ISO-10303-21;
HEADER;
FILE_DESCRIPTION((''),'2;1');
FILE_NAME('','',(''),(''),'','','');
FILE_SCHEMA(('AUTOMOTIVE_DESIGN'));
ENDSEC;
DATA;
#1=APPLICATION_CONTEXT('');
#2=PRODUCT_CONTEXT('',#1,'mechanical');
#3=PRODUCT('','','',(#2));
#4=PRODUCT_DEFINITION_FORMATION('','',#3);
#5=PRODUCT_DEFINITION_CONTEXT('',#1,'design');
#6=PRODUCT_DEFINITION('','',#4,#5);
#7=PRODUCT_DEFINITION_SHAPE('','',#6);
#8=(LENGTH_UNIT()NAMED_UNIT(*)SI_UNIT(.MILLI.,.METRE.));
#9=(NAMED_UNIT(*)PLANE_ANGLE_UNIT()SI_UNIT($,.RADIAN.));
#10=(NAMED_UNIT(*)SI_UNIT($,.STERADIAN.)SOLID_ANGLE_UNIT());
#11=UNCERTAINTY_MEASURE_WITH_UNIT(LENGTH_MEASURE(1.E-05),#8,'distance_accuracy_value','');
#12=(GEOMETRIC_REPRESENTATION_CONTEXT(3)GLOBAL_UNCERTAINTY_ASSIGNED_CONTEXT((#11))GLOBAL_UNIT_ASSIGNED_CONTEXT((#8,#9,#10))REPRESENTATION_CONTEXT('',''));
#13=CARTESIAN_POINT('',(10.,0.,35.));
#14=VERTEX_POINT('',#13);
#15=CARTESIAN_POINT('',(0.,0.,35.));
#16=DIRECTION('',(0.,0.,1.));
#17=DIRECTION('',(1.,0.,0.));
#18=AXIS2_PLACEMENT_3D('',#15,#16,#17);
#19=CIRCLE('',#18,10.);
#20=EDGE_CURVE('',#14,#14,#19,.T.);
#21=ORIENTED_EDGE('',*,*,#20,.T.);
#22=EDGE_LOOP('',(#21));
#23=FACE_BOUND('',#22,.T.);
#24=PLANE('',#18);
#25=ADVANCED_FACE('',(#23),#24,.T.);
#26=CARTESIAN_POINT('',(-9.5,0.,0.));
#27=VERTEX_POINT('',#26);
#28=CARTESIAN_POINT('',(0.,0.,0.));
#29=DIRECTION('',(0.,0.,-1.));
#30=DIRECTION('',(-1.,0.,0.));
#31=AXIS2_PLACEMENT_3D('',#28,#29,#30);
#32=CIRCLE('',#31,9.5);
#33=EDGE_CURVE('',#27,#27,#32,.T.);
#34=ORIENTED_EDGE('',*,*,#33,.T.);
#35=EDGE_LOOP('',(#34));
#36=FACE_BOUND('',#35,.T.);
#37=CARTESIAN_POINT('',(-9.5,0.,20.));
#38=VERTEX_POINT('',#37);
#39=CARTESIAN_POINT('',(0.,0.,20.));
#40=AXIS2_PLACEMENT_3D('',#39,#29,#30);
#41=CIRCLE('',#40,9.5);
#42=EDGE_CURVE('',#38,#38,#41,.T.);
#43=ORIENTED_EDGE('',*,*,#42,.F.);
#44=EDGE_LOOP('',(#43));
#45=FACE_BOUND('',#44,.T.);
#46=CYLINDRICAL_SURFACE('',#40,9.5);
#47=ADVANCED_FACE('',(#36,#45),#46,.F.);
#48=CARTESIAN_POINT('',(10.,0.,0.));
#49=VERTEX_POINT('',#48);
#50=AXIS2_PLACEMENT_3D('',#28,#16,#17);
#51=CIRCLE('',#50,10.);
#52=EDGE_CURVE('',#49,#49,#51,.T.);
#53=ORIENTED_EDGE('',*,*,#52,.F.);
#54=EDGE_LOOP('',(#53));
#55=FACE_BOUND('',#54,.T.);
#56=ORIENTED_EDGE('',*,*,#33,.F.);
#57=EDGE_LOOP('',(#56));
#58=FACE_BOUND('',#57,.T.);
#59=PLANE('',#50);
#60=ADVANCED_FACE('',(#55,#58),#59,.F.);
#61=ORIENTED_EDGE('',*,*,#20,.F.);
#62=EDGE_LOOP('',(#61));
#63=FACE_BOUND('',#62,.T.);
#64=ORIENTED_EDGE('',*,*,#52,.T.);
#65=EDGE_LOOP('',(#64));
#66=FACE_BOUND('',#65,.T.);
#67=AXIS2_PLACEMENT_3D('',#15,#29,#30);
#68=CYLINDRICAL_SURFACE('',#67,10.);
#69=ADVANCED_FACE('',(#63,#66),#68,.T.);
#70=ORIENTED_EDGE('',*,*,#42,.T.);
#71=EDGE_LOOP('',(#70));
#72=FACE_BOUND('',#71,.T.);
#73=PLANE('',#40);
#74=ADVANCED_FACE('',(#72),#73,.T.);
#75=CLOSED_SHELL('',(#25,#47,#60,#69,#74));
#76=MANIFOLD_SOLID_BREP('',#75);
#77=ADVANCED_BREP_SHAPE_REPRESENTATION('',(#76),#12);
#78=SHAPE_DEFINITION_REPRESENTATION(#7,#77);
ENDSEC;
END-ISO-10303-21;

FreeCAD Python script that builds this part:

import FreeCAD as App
import Part
import Sketcher
from FreeCAD import Vector
Q = App.Units.Quantity

doc = App.newDocument("Part")
params = doc.addObject("Spreadsheet::Sheet", "Params")
for row, (alias, value) in enumerate([
    ("sketch1_diameter", "20 mm"),
    ("pad1_length", "35 mm"),
    ("sketch2_diameter", "19 mm"),
    ("pocket1_length", "20 mm"),
], start=1):
    params.set(f"A{row}", alias)
    params.set(f"B{row}", "=" + value)
    params.setAlias(f"B{row}", alias)

body = doc.addObject("PartDesign::Body", "Body")

sketch1 = body.newObject("Sketcher::SketchObject", "Sketch")
sketch1.AttachmentSupport = (doc.getObject("XY_Plane"), [""])
sketch1.MapMode = "FlatFace"
sketch1.addGeometry(Part.Circle(Vector(0, 0, 0), Vector(0, 0, 1), 10), False)
sketch1.addConstraint(Sketcher.Constraint("Coincident", 0, 3, -1, 1))
sketch1.addConstraint(Sketcher.Constraint("Diameter", 0, Q("20 mm")))
sketch1.setExpression("Constraints[1]", "Params.sketch1_diameter")
pad1 = body.newObject("PartDesign::Pad", "Pad")
pad1.Profile = sketch1
pad1.setExpression("Length", "Params.pad1_length")

sketch2 = body.newObject("Sketcher::SketchObject", "Sketch001")
sketch2.AttachmentSupport = (doc.getObject("XY_Plane"), [""])
sketch2.MapMode = "FlatFace"
sketch2.addGeometry(Part.Circle(Vector(0, 0, 0), Vector(0, 0, 1), 10), False)
sketch2.addConstraint(Sketcher.Constraint("Coincident", 0, 3, -1, 1))
sketch2.addConstraint(Sketcher.Constraint("Diameter", 0, Q("19 mm")))
sketch2.setExpression("Constraints[1]", "Params.sketch2_diameter")
pocket1 = body.newObject("PartDesign::Pocket", "Pocket")
pocket1.Profile = sketch2
pocket1.setExpression("Length", "Params.pocket1_length")
pocket1.Reversed = True

doc.recompute()
